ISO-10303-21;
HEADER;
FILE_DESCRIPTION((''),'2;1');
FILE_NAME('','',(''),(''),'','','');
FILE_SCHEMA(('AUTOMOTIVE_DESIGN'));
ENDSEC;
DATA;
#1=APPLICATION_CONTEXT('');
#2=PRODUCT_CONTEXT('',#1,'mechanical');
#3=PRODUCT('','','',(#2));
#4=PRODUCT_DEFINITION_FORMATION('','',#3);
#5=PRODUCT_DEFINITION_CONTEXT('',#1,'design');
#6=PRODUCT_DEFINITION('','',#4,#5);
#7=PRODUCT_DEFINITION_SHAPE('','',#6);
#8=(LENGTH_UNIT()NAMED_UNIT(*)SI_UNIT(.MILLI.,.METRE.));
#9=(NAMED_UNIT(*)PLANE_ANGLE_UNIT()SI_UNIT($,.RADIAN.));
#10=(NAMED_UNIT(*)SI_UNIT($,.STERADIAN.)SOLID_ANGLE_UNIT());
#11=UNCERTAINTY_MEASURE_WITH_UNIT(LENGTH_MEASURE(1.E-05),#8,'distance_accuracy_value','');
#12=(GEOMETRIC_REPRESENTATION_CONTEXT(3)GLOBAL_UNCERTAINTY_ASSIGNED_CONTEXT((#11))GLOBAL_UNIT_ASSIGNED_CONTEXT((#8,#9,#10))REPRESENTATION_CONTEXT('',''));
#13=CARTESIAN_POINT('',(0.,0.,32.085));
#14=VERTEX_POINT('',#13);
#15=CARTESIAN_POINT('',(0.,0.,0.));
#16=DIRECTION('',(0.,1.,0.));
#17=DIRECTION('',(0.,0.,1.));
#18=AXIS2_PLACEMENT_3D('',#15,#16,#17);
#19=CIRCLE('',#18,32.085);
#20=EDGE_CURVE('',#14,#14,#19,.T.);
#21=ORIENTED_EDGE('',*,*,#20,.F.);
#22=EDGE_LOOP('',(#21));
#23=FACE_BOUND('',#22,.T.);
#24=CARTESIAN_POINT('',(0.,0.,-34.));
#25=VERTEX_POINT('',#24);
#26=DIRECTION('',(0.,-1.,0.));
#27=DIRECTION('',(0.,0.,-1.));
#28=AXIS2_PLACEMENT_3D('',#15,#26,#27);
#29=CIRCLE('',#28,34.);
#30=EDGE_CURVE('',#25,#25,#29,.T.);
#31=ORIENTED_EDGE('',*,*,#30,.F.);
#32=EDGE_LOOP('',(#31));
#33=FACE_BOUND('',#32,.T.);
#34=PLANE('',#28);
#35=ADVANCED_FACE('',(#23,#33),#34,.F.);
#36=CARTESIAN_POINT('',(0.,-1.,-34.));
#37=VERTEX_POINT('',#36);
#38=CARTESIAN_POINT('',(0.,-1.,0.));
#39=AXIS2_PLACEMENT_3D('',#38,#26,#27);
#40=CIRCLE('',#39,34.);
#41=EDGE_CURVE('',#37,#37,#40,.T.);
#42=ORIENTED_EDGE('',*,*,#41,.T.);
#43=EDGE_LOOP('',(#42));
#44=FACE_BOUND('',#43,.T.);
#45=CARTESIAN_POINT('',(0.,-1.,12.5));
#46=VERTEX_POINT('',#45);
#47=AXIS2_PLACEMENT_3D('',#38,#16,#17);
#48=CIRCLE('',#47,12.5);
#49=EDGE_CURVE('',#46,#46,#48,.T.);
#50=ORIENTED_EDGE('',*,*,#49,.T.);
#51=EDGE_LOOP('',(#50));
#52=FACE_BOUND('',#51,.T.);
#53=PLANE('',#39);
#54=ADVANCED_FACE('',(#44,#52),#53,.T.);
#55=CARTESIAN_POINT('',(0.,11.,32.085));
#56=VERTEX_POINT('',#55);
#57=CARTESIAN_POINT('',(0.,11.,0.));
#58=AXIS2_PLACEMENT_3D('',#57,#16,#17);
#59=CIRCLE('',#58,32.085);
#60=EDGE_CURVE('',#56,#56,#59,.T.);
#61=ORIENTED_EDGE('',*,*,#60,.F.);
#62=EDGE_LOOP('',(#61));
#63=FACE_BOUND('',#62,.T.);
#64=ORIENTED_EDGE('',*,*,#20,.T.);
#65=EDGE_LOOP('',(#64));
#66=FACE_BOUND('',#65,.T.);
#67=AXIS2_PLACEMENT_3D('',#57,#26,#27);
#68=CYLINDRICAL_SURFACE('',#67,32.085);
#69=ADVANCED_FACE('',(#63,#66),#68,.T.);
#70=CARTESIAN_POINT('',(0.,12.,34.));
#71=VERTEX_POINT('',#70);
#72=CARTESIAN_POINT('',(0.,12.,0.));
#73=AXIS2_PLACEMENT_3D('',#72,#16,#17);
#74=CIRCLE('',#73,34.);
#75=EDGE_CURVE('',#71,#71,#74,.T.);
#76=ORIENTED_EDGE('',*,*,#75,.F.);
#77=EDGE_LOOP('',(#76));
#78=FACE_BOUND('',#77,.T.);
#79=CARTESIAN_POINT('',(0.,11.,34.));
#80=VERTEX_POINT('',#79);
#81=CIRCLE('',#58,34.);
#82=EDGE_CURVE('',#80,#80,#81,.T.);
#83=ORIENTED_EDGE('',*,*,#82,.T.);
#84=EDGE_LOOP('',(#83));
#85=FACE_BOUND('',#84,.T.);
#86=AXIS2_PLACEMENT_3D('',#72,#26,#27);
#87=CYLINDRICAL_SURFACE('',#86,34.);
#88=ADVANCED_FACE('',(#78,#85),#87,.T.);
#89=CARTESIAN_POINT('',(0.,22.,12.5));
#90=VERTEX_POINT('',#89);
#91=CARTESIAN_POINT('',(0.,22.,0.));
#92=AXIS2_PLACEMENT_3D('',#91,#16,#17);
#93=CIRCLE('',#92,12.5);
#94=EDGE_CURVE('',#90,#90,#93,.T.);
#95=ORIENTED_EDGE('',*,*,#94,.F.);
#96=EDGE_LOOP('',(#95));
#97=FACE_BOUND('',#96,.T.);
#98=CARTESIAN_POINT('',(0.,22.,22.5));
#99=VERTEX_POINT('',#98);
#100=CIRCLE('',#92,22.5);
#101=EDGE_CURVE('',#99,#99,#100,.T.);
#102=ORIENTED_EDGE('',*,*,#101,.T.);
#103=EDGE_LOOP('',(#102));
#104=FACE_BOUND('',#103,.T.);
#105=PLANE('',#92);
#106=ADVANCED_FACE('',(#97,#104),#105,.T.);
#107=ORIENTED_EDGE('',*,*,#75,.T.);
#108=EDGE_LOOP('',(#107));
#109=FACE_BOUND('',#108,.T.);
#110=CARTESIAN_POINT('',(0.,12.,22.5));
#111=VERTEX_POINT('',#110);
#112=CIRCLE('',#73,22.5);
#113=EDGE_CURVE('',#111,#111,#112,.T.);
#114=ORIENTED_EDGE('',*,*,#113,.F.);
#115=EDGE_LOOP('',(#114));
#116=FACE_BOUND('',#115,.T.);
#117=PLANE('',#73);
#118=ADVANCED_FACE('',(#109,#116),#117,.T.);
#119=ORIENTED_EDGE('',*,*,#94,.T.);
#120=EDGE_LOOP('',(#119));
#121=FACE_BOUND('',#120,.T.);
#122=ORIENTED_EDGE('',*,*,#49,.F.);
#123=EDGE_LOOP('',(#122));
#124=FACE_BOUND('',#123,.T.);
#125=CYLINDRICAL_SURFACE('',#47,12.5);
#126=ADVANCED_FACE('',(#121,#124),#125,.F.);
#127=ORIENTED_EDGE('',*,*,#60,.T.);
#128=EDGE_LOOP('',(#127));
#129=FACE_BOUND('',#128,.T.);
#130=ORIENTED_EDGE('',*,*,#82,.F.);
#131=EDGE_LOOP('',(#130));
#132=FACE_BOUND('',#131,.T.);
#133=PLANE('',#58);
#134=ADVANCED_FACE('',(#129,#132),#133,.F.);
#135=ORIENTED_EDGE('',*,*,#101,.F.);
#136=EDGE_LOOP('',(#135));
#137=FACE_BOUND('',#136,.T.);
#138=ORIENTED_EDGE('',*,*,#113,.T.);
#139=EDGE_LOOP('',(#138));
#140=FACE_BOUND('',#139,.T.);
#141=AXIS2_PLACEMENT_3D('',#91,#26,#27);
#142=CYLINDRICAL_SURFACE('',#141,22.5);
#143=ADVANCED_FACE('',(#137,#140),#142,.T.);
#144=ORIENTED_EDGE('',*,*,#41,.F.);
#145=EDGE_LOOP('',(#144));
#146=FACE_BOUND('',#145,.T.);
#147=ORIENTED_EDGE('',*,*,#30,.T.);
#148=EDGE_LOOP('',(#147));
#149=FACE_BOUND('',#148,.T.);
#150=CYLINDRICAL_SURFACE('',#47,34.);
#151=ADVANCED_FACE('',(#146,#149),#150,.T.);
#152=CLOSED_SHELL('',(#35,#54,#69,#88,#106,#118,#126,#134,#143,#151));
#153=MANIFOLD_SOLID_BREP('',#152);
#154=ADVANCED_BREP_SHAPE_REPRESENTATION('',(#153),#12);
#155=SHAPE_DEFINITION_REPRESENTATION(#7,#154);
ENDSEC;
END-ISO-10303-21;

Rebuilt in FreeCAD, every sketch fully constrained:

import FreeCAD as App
import Part
import Sketcher
from FreeCAD import Vector

doc = App.newDocument("Part")
body = doc.addObject("PartDesign::Body", "Body")

# Sketch on XZ plane
sketch1 = body.newObject("Sketcher::SketchObject", "Sketch")
sketch1.AttachmentSupport = (doc.getObject("XZ_Plane"), [""])
sketch1.MapMode = "FlatFace"
sketch1.addGeometry(Part.Circle(Vector(0, 0, 0), Vector(0, 0, 1), 32.085), False)
sketch1.addConstraint([
    Sketcher.Constraint("Coincident", 0, 3, -1, 1),
    Sketcher.Constraint("Diameter", 0, 64.17),
])
pad1 = body.newObject("PartDesign::Pad", "Pad")
pad1.Profile = sketch1
pad1.Length = 11
pad1.Reversed = True

# Sketch on XZ plane
sketch2 = body.newObject("Sketcher::SketchObject", "Sketch001")
sketch2.AttachmentSupport = (doc.getObject("XZ_Plane"), [""])
sketch2.MapMode = "FlatFace"
sketch2.AttachmentOffset = App.Placement(Vector(0, 0, -11), App.Rotation())
sketch2.addGeometry(Part.Circle(Vector(0, 0, 0), Vector(0, 0, 1), 34), False)
sketch2.addConstraint([
    Sketcher.Constraint("Coincident", 0, 3, -1, 1),
    Sketcher.Constraint("Diameter", 0, 68.0),
])
pad2 = body.newObject("PartDesign::Pad", "Pad001")
pad2.Profile = sketch2
pad2.Length = 1
pad2.Reversed = True

# Sketch on XZ plane
sketch3 = body.newObject("Sketcher::SketchObject", "Sketch002")
sketch3.AttachmentSupport = (doc.getObject("XZ_Plane"), [""])
sketch3.MapMode = "FlatFace"
sketch3.AttachmentOffset = App.Placement(Vector(0, 0, 1), App.Rotation())
sketch3.addGeometry(Part.Circle(Vector(0, 0, 0), Vector(0, 0, 1), 34), False)
sketch3.addConstraint([
    Sketcher.Constraint("Coincident", 0, 3, -1, 1),
    Sketcher.Constraint("Diameter", 0, 68.0),
])
pad3 = body.newObject("PartDesign::Pad", "Pad002")
pad3.Profile = sketch3
pad3.Length = 1
pad3.Reversed = True

# Sketch on XZ plane
sketch4 = body.newObject("Sketcher::SketchObject", "Sketch003")
sketch4.AttachmentSupport = (doc.getObject("XZ_Plane"), [""])
sketch4.MapMode = "FlatFace"
sketch4.AttachmentOffset = App.Placement(Vector(0, 0, -12), App.Rotation())
sketch4.addGeometry(Part.Circle(Vector(0, 0, 0), Vector(0, 0, 1), 12.5), False)
sketch4.addConstraint([
    Sketcher.Constraint("Coincident", 0, 3, -1, 1),
    Sketcher.Constraint("Diameter", 0, 25.0),
])
pocket1 = body.newObject("PartDesign::Pocket", "Pocket")
pocket1.Profile = sketch4
pocket1.Type = "ThroughAll"
pocket1.Reversed = True

# Sketch on XZ plane
sketch5 = body.newObject("Sketcher::SketchObject", "Sketch004")
sketch5.AttachmentSupport = (doc.getObject("XZ_Plane"), [""])
sketch5.MapMode = "FlatFace"
sketch5.AttachmentOffset = App.Placement(Vector(0, 0, -22), App.Rotation())
sketch5.addGeometry([
    Part.Circle(Vector(0, 0, 0), Vector(0, 0, 1), 22.5),
    Part.Circle(Vector(0, 0, 0), Vector(0, 0, 1), 12.5),
], False)
sketch5.addConstraint([
    Sketcher.Constraint("Coincident", 0, 3, -1, 1),
    Sketcher.Constraint("Coincident", 1, 3, -1, 1),
    Sketcher.Constraint("Diameter", 0, 45.0),
    Sketcher.Constraint("Diameter", 1, 25.0),
])
pad4 = body.newObject("PartDesign::Pad", "Pad003")
pad4.Profile = sketch5
pad4.Length = 10

doc.recompute()
